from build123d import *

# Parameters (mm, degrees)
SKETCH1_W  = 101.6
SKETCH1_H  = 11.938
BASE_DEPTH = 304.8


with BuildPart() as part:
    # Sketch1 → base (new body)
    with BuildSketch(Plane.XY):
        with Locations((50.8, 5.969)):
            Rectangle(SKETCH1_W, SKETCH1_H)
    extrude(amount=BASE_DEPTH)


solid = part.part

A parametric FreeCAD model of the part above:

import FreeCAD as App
import Part
import Sketcher
from FreeCAD import Vector
Q = App.Units.Quantity


def add_polygon(sketch, points):
    """Adds a closed chain of lines whose ends are joined by coincident constraints."""
    first, n = sketch.GeometryCount, len(points)
    for a, b in zip(points, points[1:] + points[:1]):
        sketch.addGeometry(Part.LineSegment(App.Vector(*a, 0), App.Vector(*b, 0)), False)
    for i in range(n):
        sketch.addConstraint(Sketcher.Constraint("Coincident", first + i, 2, first + (i + 1) % n, 1))

doc = App.newDocument("Part")
body = doc.addObject("PartDesign::Body", "Body")

sketch1 = body.newObject("Sketcher::SketchObject", "Sketch")
sketch1.AttachmentSupport = (doc.getObject("XY_Plane"), [""])
sketch1.MapMode = "FlatFace"
add_polygon(sketch1, [(0, 11.938), (0, 0), (101.6, 0), (101.6, 11.938)])
sketch1.addConstraint([
    Sketcher.Constraint("Vertical", 0),
    Sketcher.Constraint("Horizontal", 1),
    Sketcher.Constraint("Vertical", 2),
    Sketcher.Constraint("Horizontal", 3),
    Sketcher.Constraint("Coincident", 0, 2, -1, 1),
    Sketcher.Constraint("DistanceX", 1, 1, 1, 2, Q("4 in")),
    Sketcher.Constraint("DistanceY", 0, 2, 0, 1, Q("0.47 in")),
])
pad1 = body.newObject("PartDesign::Pad", "Pad")
pad1.Profile = sketch1
pad1.Length = Q("12 in")

doc.recompute()
